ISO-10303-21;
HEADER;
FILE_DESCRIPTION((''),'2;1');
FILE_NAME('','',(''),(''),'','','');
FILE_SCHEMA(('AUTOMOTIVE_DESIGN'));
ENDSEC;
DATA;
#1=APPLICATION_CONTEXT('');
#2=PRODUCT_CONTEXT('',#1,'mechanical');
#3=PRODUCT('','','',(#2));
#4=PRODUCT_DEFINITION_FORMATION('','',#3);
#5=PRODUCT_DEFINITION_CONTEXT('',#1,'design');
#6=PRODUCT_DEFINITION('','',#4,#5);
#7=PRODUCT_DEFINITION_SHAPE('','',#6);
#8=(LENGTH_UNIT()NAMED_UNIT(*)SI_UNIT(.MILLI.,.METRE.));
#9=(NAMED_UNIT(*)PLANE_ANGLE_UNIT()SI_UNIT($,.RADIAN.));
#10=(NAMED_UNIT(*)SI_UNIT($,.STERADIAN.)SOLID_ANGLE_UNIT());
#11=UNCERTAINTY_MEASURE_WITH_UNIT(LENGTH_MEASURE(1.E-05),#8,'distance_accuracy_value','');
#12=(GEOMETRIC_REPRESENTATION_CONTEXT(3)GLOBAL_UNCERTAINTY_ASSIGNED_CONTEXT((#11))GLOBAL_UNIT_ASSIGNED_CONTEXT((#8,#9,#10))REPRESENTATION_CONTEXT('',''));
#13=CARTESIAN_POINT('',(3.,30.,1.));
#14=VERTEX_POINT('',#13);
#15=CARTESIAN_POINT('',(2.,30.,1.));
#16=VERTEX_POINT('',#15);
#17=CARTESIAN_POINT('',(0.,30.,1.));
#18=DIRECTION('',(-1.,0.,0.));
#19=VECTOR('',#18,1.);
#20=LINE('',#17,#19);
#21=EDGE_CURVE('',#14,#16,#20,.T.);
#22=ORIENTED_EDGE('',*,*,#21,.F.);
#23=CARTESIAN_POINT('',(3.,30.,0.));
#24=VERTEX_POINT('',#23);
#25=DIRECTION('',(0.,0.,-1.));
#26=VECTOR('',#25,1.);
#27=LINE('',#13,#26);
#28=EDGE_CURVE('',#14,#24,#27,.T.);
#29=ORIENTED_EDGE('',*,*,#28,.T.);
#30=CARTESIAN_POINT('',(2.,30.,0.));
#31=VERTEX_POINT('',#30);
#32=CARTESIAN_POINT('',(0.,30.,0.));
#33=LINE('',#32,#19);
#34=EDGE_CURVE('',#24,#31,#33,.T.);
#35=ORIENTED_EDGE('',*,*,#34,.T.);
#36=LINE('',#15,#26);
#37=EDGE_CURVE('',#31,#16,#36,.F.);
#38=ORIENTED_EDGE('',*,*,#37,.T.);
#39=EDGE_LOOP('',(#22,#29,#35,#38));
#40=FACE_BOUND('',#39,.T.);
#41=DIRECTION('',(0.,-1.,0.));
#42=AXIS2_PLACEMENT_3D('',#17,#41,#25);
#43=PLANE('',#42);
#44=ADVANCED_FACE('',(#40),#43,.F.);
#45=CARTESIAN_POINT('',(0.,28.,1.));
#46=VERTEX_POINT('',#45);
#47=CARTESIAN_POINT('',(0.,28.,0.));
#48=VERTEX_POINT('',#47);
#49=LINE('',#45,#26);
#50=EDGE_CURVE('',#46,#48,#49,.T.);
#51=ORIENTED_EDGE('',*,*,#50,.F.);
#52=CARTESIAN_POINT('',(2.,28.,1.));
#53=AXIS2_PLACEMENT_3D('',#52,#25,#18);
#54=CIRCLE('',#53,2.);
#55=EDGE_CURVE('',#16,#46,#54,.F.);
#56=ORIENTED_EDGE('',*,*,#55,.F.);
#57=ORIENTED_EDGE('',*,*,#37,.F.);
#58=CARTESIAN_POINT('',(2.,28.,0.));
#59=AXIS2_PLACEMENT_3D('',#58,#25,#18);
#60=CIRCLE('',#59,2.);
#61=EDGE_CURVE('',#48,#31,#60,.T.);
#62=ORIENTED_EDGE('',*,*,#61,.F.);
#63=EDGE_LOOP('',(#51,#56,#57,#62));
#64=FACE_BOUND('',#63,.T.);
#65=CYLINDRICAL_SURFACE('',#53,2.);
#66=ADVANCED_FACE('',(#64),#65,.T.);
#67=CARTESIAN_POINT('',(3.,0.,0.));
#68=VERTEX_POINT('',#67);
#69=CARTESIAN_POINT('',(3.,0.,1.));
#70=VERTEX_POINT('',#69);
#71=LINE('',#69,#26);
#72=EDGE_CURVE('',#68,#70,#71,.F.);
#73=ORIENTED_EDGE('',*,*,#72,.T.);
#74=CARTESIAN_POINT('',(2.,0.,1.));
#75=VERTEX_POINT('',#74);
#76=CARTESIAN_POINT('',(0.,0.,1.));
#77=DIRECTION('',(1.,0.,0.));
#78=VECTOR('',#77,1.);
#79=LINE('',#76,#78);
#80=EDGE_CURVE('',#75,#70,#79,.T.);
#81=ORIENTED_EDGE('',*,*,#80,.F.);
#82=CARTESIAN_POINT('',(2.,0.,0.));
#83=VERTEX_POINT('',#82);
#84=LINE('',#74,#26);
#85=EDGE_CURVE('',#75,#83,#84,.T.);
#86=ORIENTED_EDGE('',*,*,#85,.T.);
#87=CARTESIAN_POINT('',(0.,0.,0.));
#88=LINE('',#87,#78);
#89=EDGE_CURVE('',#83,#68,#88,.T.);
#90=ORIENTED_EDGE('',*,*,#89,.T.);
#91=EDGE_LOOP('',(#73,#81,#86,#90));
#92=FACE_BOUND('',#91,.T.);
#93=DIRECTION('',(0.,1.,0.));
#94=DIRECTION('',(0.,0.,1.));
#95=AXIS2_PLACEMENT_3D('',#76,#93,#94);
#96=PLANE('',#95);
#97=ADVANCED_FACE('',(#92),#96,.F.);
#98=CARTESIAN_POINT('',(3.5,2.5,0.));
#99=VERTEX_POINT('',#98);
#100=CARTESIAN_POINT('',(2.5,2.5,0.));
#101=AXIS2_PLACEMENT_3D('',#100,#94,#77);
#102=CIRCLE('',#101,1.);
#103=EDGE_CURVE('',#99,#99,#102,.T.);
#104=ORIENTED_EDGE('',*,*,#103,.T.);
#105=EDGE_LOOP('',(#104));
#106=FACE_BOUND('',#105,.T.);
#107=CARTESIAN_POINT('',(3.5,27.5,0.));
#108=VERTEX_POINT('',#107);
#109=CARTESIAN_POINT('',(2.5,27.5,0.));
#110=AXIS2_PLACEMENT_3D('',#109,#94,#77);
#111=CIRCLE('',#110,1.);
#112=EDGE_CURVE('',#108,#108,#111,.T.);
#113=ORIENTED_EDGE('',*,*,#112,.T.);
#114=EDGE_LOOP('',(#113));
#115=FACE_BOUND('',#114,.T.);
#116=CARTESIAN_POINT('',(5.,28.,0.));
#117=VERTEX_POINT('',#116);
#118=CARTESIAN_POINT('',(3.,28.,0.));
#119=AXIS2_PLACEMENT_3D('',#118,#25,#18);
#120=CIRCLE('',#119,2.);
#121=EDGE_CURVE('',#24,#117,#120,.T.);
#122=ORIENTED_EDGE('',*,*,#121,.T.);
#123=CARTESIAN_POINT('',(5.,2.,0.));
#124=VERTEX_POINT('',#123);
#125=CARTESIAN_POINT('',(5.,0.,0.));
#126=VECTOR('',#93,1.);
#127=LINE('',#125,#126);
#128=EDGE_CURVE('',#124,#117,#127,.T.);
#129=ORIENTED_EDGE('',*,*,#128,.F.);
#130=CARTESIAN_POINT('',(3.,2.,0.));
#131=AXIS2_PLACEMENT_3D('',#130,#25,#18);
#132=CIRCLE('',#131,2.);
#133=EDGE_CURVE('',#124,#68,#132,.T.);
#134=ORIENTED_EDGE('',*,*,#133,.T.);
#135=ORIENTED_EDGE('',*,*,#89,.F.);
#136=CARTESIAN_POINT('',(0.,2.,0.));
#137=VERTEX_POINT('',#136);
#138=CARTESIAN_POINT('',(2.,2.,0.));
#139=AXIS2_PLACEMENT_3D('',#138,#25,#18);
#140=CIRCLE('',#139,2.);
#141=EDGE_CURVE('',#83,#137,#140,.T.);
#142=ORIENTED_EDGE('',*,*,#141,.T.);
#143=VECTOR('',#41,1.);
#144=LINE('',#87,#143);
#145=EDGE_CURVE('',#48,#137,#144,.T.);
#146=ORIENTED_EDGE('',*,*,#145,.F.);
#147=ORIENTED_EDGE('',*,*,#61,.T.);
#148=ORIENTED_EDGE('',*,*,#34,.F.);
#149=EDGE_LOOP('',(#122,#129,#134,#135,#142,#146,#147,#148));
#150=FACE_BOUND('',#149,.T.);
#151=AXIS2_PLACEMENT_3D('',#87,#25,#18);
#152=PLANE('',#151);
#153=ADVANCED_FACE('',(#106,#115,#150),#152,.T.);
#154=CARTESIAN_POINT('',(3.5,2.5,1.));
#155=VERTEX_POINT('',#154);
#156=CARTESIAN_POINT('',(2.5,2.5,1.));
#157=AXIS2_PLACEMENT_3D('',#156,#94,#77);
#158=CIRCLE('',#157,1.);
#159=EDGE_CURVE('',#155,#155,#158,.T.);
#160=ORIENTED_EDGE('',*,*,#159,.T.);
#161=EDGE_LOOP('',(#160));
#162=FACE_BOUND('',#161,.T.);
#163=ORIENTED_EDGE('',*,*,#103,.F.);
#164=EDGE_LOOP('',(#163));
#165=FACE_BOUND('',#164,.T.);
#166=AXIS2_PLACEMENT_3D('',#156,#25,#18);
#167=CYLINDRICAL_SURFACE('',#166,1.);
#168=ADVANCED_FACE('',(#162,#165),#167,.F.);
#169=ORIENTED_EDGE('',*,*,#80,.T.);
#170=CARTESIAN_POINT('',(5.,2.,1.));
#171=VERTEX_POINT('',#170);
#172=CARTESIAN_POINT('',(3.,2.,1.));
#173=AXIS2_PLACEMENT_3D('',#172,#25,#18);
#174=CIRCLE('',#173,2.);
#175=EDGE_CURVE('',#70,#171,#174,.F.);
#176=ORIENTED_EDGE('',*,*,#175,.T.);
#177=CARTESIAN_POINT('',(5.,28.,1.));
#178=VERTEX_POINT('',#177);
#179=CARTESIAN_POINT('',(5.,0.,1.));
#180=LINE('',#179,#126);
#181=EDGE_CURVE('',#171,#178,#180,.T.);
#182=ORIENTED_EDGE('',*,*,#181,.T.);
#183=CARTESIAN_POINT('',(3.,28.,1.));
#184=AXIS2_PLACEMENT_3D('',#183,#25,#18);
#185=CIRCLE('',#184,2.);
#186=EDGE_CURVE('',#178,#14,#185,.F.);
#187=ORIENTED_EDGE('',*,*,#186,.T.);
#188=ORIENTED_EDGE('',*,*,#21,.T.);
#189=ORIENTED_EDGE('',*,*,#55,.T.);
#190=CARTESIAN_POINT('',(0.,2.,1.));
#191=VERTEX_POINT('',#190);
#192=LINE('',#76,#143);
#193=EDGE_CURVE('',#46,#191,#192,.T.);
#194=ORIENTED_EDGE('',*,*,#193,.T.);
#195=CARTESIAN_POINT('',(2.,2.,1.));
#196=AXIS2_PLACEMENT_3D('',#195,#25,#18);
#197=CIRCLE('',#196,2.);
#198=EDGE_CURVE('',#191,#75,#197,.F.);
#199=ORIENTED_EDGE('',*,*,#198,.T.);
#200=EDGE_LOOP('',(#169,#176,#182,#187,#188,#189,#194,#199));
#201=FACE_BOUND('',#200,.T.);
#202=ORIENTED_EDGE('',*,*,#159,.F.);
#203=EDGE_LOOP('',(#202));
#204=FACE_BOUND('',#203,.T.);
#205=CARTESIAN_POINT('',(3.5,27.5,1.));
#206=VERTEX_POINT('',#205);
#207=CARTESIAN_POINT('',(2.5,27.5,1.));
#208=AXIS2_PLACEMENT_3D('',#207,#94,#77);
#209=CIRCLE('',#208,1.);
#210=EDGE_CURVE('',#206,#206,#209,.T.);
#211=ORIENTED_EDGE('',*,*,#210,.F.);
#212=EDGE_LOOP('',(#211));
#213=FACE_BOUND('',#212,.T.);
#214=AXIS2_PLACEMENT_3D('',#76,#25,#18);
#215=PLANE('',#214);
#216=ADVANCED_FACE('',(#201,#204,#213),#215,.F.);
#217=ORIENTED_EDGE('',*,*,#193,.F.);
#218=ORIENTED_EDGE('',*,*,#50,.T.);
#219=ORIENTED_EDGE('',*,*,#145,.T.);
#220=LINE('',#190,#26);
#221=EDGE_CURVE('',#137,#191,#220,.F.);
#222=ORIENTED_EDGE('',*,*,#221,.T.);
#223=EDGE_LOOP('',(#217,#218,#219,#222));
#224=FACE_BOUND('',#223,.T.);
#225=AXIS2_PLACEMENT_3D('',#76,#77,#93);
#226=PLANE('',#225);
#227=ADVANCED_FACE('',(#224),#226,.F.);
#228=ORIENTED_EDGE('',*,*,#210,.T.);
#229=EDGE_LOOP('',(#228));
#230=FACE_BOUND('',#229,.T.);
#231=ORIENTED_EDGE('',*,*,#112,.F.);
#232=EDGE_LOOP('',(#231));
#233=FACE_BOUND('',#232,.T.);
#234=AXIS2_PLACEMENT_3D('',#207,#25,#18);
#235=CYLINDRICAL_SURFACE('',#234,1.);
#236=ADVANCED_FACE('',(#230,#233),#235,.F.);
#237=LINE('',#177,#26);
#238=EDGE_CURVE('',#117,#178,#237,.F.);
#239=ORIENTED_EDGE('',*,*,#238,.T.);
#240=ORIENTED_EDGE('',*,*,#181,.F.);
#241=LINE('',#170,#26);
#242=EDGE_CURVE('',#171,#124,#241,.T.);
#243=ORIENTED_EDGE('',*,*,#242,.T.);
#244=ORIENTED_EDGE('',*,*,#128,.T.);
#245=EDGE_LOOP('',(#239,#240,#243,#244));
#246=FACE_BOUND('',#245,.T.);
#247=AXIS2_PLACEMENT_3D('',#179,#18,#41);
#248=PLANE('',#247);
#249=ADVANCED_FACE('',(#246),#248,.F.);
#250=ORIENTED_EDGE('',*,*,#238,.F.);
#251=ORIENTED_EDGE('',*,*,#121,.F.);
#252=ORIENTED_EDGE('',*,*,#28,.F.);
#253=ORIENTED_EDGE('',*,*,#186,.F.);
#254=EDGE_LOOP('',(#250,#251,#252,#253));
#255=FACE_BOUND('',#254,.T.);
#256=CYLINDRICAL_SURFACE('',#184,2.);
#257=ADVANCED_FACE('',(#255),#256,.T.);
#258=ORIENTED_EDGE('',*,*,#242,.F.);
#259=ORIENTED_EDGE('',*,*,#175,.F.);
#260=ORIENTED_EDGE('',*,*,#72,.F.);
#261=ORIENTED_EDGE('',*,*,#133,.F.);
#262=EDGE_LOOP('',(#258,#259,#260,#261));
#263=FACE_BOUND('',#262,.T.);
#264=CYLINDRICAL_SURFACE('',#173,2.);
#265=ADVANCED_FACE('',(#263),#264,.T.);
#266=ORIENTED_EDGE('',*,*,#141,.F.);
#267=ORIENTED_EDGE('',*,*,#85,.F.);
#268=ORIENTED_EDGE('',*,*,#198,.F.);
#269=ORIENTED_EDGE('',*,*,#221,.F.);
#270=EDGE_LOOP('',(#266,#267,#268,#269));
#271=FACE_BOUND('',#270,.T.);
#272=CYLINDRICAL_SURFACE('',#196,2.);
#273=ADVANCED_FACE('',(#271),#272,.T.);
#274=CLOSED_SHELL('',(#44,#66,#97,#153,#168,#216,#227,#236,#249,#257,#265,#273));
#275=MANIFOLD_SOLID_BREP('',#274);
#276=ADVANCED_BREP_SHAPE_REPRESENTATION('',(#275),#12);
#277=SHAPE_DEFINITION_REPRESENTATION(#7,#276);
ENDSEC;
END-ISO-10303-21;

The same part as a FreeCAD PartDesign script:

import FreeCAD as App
import Part
import Sketcher
from FreeCAD import Vector


def edges_at(feature, points):
    """Names of the edges that pass closest to the given points."""
    edges = feature.Shape.Edges
    near = lambda p: min(range(len(edges)), key=lambda i: edges[i].distToShape(Part.Vertex(*p))[0])
    return sorted({f"Edge{near(p) + 1}" for p in points})

doc = App.newDocument("Part")
params = doc.addObject("Spreadsheet::Sheet", "Params")
for row, (alias, value) in enumerate([
    ("sketch1_diameter", "2 mm"),
    ("sketch1_width", "5 mm"),
    ("sketch1_height", "30 mm"),
    ("pad1_length", "1 mm"),
    ("fillet_radius", "2 mm"),
    ("fillet2_radius", "2 mm"),
    ("fillet3_radius", "2 mm"),
    ("fillet4_radius", "2 mm"),
], start=1):
    params.set(f"A{row}", alias)
    params.set(f"B{row}", "=" + value)
    params.setAlias(f"B{row}", alias)

body = doc.addObject("PartDesign::Body", "Body")

# Sketch on XY plane
sketch1 = body.newObject("Sketcher::SketchObject", "Sketch")
sketch1.AttachmentSupport = (doc.getObject("XY_Plane"), [""])
sketch1.MapMode = "FlatFace"
sketch1.addGeometry([
    Part.LineSegment(Vector(0, 30, 0), Vector(0, 0, 0)),  # 0
    Part.LineSegment(Vector(0, 0, 0), Vector(5, 0, 0)),  # 1
    Part.LineSegment(Vector(5, 0, 0), Vector(5, 30, 0)),  # 2
    Part.LineSegment(Vector(5, 30, 0), Vector(0, 30, 0)),  # 3
    Part.Circle(Vector(2.5, 2.5, 0), Vector(0, 0, 1), 1),  # 4
    Part.Circle(Vector(2.5, 27.5, 0), Vector(0, 0, 1), 1),  # 5
], False)
sketch1.addConstraint([
    Sketcher.Constraint("Coincident", 0, 2, 1, 1),
    Sketcher.Constraint("Coincident", 1, 2, 2, 1),
    Sketcher.Constraint("Coincident", 2, 2, 3, 1),
    Sketcher.Constraint("Coincident", 3, 2, 0, 1),
    Sketcher.Constraint("Vertical", 0),
    Sketcher.Constraint("Horizontal", 1),
    Sketcher.Constraint("Vertical", 2),
    Sketcher.Constraint("Horizontal", 3),
    Sketcher.Constraint("Coincident", 0, 2, -1, 1),
    Sketcher.Constraint("Equal", 4, 5),
    Sketcher.Constraint("Vertical", 4, 3, 5, 3),
    Sketcher.Constraint("Diameter", 4, 2.0),
    Sketcher.Constraint("DistanceX", 1, 1, 1, 2, 5.0),
    Sketcher.Constraint("DistanceY", 0, 2, 0, 1, 30.0),
    Sketcher.Constraint("DistanceY", 4, 3, 5, 3, 25.0),
    Sketcher.Constraint("DistanceX", -1, 1, 4, 3, 2.5),
    Sketcher.Constraint("DistanceY", -1, 1, 4, 3, 2.5),
])
sketch1.setExpression("Constraints[11]", "Params.sketch1_diameter")
sketch1.setExpression("Constraints[12]", "Params.sketch1_width")
sketch1.setExpression("Constraints[13]", "Params.sketch1_height")
pad1 = body.newObject("PartDesign::Pad", "Pad")
pad1.Profile = sketch1
pad1.setExpression("Length", "Params.pad1_length")
doc.recompute()

fillet = body.newObject("PartDesign::Fillet", "Fillet")
fillet.Base = (pad1, edges_at(pad1, [(5, 0, 0.5)]))
fillet.setExpression("Radius", "Params.fillet_radius")
doc.recompute()

fillet2 = body.newObject("PartDesign::Fillet", "Fillet001")
fillet2.Base = (fillet, edges_at(fillet, [(0, 0, 0.5)]))
fillet2.setExpression("Radius", "Params.fillet2_radius")
doc.recompute()

fillet3 = body.newObject("PartDesign::Fillet", "Fillet002")
fillet3.Base = (fillet2, edges_at(fillet2, [(0, 30, 0.5)]))
fillet3.setExpression("Radius", "Params.fillet3_radius")
doc.recompute()

fillet4 = body.newObject("PartDesign::Fillet", "Fillet003")
fillet4.Base = (fillet3, edges_at(fillet3, [(5, 30, 0.5)]))
fillet4.setExpression("Radius", "Params.fillet4_radius")

doc.recompute()
